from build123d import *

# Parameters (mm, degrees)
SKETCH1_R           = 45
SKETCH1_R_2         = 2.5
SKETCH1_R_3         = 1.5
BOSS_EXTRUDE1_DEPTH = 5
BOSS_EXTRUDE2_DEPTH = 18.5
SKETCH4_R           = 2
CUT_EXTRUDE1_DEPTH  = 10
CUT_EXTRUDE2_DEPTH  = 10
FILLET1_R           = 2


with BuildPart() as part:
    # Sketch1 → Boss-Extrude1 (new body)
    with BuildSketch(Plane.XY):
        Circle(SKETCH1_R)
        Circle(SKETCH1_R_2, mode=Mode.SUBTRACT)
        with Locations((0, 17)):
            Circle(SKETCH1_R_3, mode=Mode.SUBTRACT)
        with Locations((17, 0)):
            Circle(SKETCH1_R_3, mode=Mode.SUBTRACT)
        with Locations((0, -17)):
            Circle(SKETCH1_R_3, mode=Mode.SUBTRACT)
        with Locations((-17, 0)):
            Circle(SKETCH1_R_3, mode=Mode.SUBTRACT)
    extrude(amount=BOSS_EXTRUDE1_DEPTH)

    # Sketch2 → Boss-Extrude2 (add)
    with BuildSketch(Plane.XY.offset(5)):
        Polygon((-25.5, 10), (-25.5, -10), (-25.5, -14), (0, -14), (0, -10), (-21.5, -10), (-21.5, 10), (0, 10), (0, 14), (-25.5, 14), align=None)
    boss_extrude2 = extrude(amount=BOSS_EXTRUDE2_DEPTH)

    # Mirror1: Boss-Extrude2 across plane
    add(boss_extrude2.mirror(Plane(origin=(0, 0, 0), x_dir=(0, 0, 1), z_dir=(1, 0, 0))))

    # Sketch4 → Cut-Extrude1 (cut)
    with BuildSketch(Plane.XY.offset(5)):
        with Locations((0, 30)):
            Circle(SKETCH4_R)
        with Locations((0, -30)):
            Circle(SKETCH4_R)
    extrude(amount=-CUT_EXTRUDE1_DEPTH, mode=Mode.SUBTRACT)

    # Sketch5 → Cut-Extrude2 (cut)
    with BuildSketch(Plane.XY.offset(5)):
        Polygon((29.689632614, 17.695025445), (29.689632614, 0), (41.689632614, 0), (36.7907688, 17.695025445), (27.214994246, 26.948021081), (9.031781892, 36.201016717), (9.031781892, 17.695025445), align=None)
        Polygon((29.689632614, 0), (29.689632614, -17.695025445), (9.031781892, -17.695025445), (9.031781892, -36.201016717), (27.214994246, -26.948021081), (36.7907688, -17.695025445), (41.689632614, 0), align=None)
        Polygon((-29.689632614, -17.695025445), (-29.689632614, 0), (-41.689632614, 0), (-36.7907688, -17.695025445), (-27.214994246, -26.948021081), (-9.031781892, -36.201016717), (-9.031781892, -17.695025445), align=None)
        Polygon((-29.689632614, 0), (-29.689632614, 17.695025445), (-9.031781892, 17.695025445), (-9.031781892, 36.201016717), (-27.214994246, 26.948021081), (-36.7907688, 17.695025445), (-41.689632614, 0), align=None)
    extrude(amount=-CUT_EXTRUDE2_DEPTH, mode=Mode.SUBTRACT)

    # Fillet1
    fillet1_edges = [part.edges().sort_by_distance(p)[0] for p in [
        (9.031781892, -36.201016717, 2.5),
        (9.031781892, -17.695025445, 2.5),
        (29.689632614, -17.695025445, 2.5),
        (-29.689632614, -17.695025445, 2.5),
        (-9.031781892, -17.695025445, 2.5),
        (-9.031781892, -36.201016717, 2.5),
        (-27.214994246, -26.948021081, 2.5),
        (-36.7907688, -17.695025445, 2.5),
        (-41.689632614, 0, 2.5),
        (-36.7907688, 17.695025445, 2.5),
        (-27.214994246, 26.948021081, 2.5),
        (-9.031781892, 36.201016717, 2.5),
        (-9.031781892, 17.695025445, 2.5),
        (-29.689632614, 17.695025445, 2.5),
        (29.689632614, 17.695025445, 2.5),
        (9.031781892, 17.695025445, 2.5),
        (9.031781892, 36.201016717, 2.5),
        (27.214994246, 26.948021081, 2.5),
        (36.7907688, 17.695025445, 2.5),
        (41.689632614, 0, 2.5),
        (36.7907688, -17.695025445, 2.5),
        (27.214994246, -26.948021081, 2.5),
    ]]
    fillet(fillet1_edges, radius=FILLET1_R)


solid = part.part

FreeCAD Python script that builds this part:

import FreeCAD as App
import Part
import Sketcher
Q = App.Units.Quantity


def edges_at(feature, points):
    """Names of the edges that pass closest to the given points."""
    edges = feature.Shape.Edges
    near = lambda p: min(range(len(edges)), key=lambda i: edges[i].distToShape(Part.Vertex(*p))[0])
    return sorted({f"Edge{near(p) + 1}" for p in points})


def add_polygon(sketch, points):
    """Adds a closed chain of lines whose ends are joined by coincident constraints."""
    first, n = sketch.GeometryCount, len(points)
    for a, b in zip(points, points[1:] + points[:1]):
        sketch.addGeometry(Part.LineSegment(App.Vector(*a, 0), App.Vector(*b, 0)), False)
    for i in range(n):
        sketch.addConstraint(Sketcher.Constraint("Coincident", first + i, 2, first + (i + 1) % n, 1))

doc = App.newDocument("Part")
body = doc.addObject("PartDesign::Body", "Body")

sketch1 = body.newObject("Sketcher::SketchObject", "Sketch")
sketch1.AttachmentSupport = (doc.getObject("XY_Plane"), [""])
sketch1.MapMode = "FlatFace"
sketch1.addGeometry([
    Part.Circle(App.Vector(0, 0, 0), App.Vector(0, 0, 1), 45),
    Part.Circle(App.Vector(0, -17, 0), App.Vector(0, 0, 1), 1.5),
    Part.Circle(App.Vector(-17, 0, 0), App.Vector(0, 0, 1), 1.5),
    Part.Circle(App.Vector(0, 0, 0), App.Vector(0, 0, 1), 2.5),
    Part.Circle(App.Vector(17, 0, 0), App.Vector(0, 0, 1), 1.5),
    Part.Circle(App.Vector(0, 17, 0), App.Vector(0, 0, 1), 1.5),
], False)
sketch1.addConstraint([
    Sketcher.Constraint("Coincident", 0, 3, -1, 1),
    Sketcher.Constraint("Coincident", 3, 3, -1, 1),
    Sketcher.Constraint("Equal", 1, 2),
    Sketcher.Constraint("Equal", 2, 4),
    Sketcher.Constraint("Equal", 4, 5),
    Sketcher.Constraint("Symmetric", 2, 3, 4, 3, -1, 1),
    Sketcher.Constraint("Symmetric", 1, 3, 5, 3, -1, 1),
    Sketcher.Constraint("PointOnObject", 1, 3, -2),
    Sketcher.Constraint("PointOnObject", 2, 3, -1),
    Sketcher.Constraint("Diameter", 0, Q("90 mm")),
    Sketcher.Constraint("Diameter", 1, Q("3 mm")),
    Sketcher.Constraint("Diameter", 3, Q("5 mm")),
    Sketcher.Constraint("DistanceY", 1, 3, -1, 1, Q("17 mm")),
    Sketcher.Constraint("DistanceX", 2, 3, -1, 1, Q("17 mm")),
])
pad1 = body.newObject("PartDesign::Pad", "Pad")
pad1.Profile = sketch1
pad1.Length = 5

sketch2 = body.newObject("Sketcher::SketchObject", "Sketch001")
sketch2.AttachmentSupport = (doc.getObject("XY_Plane"), [""])
sketch2.MapMode = "FlatFace"
sketch2.AttachmentOffset = App.Placement(App.Vector(0, 0, 5), App.Rotation())
add_polygon(sketch2, [(-25.5, -14), (0, -14), (0, -10), (-21.5, -10), (-21.5, 10), (0, 10), (0, 14), (-25.5, 14)])
sketch2.addConstraint([
    Sketcher.Constraint("Horizontal", 0),
    Sketcher.Constraint("Vertical", 1),
    Sketcher.Constraint("Horizontal", 2),
    Sketcher.Constraint("Vertical", 3),
    Sketcher.Constraint("Horizontal", 4),
    Sketcher.Constraint("Vertical", 5),
    Sketcher.Constraint("Horizontal", 6),
    Sketcher.Constraint("Vertical", 7),
    Sketcher.Constraint("Symmetric", 1, 2, 4, 2, -1, 1),
    Sketcher.Constraint("Symmetric", 0, 2, 5, 2, -1),
    Sketcher.Constraint("DistanceY", 1, 1, 1, 2, Q("4 mm")),
    Sketcher.Constraint("DistanceY", 3, 1, 3, 2, Q("20 mm")),
    Sketcher.Constraint("DistanceX", 0, 1, 0, 2, Q("25.5 mm")),
    Sketcher.Constraint("DistanceX", 2, 2, 2, 1, Q("21.5 mm")),
])
pad2 = body.newObject("PartDesign::Pad", "Pad001")
pad2.Profile = sketch2
pad2.Length = 18.5
doc.recompute()

mirrored = body.newObject("PartDesign::Mirrored", "Mirrored")
mirrored.Originals = [pad2]
mirrored.MirrorPlane = (doc.getObject("YZ_Plane"), [""])
body.Tip = mirrored

sketch3 = body.newObject("Sketcher::SketchObject", "Sketch002")
sketch3.AttachmentSupport = (doc.getObject("XY_Plane"), [""])
sketch3.MapMode = "FlatFace"
sketch3.AttachmentOffset = App.Placement(App.Vector(0, 0, 5), App.Rotation())
sketch3.addGeometry([
    Part.Circle(App.Vector(0, 30, 0), App.Vector(0, 0, 1), 2),
    Part.Circle(App.Vector(0, -30, 0), App.Vector(0, 0, 1), 2),
], False)
sketch3.addConstraint([
    Sketcher.Constraint("Equal", 0, 1),
    Sketcher.Constraint("Symmetric", 0, 3, 1, 3, -1, 1),
    Sketcher.Constraint("PointOnObject", 0, 3, -2),
    Sketcher.Constraint("Diameter", 0, Q("4 mm")),
    Sketcher.Constraint("DistanceY", -1, 1, 0, 3, Q("30 mm")),
])
pocket1 = body.newObject("PartDesign::Pocket", "Pocket")
pocket1.Profile = sketch3
pocket1.Length = 10

sketch4 = body.newObject("Sketcher::SketchObject", "Sketch003")
sketch4.AttachmentSupport = (doc.getObject("XY_Plane"), [""])
sketch4.MapMode = "FlatFace"
sketch4.AttachmentOffset = App.Placement(App.Vector(0, 0, 5), App.Rotation())
add_polygon(sketch4, [(30, 18), (30, -18), (9, -18), (9, -36), (27, -27), (37, -18), (42, 0), (37, 18), (27, 27), (9, 36), (9, 18)])
add_polygon(sketch4, [(-30, -18), (-30, 18), (-9, 18), (-9, 36), (-27, 27), (-37, 18), (-42, 0), (-37, -18), (-27, -27), (-9, -36), (-9, -18)])
sketch4.addConstraint([
    Sketcher.Constraint("Vertical", 0),
    Sketcher.Constraint("Horizontal", 1),
    Sketcher.Constraint("Vertical", 2),
    Sketcher.Constraint("Vertical", 9),
    Sketcher.Constraint("Horizontal", 10),
    Sketcher.Constraint("Vertical", 11),
    Sketcher.Constraint("Horizontal", 12),
    Sketcher.Constraint("Vertical", 13),
    Sketcher.Constraint("Vertical", 20),
    Sketcher.Constraint("Horizontal", 21),
    Sketcher.Constraint("Symmetric", 0, 2, 11, 2, -1, 1),
    Sketcher.Constraint("Symmetric", 2, 2, 13, 2, -1, 1),
    Sketcher.Constraint("Symmetric", 3, 2, 14, 2, -1, 1),
    Sketcher.Constraint("Symmetric", 4, 2, 15, 2, -1, 1),
    Sketcher.Constraint("Symmetric", 5, 2, 16, 2, -1, 1),
    Sketcher.Constraint("Symmetric", 6, 2, 17, 2, -1, 1),
    Sketcher.Constraint("Symmetric", 7, 2, 18, 2, -1, 1),
    Sketcher.Constraint("Symmetric", 8, 2, 19, 2, -1, 1),
    Sketcher.Constraint("Symmetric", 9, 2, 12, 2, -2),
    Sketcher.Constraint("Symmetric", 7, 2, 14, 2, -2),
    Sketcher.Constraint("Symmetric", 6, 2, 15, 2, -2),
    Sketcher.Constraint("PointOnObject", 5, 2, -1),
    Sketcher.Constraint("Horizontal", 1, 2, 4, 2),
    Sketcher.Constraint("Horizontal", 8, 2, 13, 2),
    Sketcher.Constraint("Horizontal", 17, 2, 20, 2),
    Sketcher.Constraint("DistanceX", 0, 2, 5, 2, Q("12 mm")),
    Sketcher.Constraint("DistanceX", 1, 2, 1, 1, Q("20.657851 mm")),
    Sketcher.Constraint("DistanceY", 0, 2, 0, 1, Q("35.390051 mm")),
    Sketcher.Constraint("DistanceY", 2, 2, 2, 1, Q("18.505991 mm")),
    Sketcher.Constraint("Distance", 5, Q("18.360632 mm")),
    Sketcher.Constraint("DistanceX", -1, 1, 1, 2, Q("9.031782 mm")),
    Sketcher.Constraint("DistanceY", 3, 2, -1, 1, Q("26.948021 mm")),
    Sketcher.Constraint("DistanceX", 3, 2, 0, 2, Q("2.474638 mm")),
])
pocket2 = body.newObject("PartDesign::Pocket", "Pocket001")
pocket2.Profile = sketch4
pocket2.Length = 10
doc.recompute()

fillet = body.newObject("PartDesign::Fillet", "Fillet")
fillet.Base = (pocket2, edges_at(pocket2, [
    (9.032, -36.201, 2.5),
    (9.032, -17.695, 2.5),
    (29.69, -17.695, 2.5),
    (-29.69, -17.695, 2.5),
    (-9.032, -17.695, 2.5),
    (-9.032, -36.201, 2.5),
    (-27.215, -26.948, 2.5),
    (-36.791, -17.695, 2.5),
    (-41.69, 0, 2.5),
    (-36.791, 17.695, 2.5),
    (-27.215, 26.948, 2.5),
    (-9.032, 36.201, 2.5),
    (-9.032, 17.695, 2.5),
    (-29.69, 17.695, 2.5),
    (29.69, 17.695, 2.5),
    (9.032, 17.695, 2.5),
    (9.032, 36.201, 2.5),
    (27.215, 26.948, 2.5),
    (36.791, 17.695, 2.5),
    (41.69, 0, 2.5),
    (36.791, -17.695, 2.5),
    (27.215, -26.948, 2.5),
]))
fillet.Radius = 2

doc.recompute()
